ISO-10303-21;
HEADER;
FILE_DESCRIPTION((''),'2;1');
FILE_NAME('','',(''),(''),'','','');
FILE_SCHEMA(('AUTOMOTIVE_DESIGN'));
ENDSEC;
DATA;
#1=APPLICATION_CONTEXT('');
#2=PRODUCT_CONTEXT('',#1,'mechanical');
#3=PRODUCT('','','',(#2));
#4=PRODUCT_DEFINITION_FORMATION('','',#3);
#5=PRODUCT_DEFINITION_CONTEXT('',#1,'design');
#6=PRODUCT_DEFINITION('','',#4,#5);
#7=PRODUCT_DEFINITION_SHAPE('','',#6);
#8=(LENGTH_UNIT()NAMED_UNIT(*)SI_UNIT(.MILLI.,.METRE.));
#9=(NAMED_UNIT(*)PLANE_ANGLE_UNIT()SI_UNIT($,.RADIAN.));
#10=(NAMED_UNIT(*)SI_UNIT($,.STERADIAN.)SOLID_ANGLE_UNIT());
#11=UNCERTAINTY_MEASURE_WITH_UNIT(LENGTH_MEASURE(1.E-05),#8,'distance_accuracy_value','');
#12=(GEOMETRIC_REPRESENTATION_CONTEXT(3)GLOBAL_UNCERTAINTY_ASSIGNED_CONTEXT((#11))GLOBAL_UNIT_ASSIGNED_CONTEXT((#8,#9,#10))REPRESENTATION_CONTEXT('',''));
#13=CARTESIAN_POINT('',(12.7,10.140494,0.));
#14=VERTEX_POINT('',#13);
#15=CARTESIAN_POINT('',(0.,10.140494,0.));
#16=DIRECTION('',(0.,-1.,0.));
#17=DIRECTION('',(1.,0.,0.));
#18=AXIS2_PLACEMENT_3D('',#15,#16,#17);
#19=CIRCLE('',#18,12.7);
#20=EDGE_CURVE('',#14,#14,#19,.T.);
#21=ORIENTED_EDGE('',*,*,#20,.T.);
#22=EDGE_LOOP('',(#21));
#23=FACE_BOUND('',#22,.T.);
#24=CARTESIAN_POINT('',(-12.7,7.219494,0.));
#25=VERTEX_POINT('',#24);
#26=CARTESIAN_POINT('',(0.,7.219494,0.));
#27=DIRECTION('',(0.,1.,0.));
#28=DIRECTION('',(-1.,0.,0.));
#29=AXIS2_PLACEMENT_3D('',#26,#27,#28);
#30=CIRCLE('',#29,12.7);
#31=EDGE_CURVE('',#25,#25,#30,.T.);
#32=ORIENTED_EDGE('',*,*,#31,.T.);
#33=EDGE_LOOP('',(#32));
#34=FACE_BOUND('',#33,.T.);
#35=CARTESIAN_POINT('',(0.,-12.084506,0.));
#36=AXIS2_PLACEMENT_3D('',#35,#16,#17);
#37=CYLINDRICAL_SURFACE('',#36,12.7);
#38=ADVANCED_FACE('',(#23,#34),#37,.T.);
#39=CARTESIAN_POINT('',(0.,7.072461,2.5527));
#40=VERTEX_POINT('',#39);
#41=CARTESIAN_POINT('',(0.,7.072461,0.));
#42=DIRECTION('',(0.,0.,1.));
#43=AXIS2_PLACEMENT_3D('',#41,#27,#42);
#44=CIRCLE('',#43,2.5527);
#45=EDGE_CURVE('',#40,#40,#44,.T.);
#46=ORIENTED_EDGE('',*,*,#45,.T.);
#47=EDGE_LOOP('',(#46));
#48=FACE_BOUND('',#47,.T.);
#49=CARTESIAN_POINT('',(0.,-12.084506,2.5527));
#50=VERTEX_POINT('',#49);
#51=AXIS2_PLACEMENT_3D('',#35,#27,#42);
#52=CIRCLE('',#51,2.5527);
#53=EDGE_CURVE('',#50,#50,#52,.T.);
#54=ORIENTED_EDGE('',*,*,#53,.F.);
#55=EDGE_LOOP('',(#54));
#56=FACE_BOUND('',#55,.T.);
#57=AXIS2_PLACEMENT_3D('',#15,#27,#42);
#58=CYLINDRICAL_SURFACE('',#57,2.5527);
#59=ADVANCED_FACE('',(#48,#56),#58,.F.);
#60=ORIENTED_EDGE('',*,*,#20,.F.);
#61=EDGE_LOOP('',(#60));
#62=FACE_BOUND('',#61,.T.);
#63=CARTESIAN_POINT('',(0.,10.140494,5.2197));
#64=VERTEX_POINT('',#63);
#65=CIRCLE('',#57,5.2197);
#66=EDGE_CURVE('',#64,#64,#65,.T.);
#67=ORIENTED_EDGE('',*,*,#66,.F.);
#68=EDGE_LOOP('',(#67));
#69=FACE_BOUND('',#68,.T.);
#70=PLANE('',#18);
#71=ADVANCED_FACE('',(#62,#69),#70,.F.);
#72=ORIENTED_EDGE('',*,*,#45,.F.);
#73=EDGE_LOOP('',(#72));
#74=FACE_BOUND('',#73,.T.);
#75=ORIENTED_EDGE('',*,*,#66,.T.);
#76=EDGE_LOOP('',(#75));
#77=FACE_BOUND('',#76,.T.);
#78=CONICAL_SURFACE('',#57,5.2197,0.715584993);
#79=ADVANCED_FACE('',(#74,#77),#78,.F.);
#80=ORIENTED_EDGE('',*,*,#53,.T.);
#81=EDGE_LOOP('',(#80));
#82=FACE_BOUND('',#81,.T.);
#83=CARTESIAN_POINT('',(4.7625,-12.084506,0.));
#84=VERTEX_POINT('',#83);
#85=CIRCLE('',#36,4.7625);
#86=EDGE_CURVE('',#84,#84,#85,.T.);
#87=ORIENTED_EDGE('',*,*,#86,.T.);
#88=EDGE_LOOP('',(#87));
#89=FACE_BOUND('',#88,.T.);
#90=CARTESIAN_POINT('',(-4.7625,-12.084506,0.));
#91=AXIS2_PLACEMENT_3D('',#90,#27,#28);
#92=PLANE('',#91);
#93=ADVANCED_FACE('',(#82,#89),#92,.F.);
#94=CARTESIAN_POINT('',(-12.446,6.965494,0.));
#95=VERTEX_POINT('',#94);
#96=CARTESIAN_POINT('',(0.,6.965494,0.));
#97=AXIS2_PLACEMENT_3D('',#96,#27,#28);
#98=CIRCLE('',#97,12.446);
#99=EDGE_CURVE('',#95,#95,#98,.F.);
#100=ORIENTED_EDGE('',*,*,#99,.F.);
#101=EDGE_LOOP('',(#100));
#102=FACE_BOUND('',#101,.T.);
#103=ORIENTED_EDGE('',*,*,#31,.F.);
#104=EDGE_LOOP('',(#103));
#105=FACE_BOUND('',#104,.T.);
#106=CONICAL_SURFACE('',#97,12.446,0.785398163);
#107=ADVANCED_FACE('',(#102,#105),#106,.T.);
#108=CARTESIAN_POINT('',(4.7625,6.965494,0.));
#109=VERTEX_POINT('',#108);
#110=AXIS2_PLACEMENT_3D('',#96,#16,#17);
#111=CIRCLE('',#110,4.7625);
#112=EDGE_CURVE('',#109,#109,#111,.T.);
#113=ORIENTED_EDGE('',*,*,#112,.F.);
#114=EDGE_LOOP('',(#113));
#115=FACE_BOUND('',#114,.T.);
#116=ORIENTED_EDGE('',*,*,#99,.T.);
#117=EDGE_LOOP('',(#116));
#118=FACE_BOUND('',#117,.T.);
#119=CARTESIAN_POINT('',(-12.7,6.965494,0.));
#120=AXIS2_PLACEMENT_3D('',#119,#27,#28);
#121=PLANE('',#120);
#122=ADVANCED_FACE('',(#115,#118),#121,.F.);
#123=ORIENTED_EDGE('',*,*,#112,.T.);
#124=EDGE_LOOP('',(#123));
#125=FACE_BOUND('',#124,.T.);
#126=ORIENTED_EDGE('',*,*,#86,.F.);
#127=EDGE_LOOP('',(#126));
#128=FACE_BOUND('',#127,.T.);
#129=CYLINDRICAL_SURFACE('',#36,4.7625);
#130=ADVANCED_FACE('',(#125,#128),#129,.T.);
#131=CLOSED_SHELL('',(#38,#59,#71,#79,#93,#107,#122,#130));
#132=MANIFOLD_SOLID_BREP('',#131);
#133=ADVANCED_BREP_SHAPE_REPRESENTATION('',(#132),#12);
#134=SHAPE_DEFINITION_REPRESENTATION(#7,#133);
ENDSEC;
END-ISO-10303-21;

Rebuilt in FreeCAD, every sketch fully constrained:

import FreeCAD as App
import Part
import Sketcher
Q = App.Units.Quantity


def edges_at(feature, points):
    """Names of the edges that pass closest to the given points."""
    edges = feature.Shape.Edges
    near = lambda p: min(range(len(edges)), key=lambda i: edges[i].distToShape(Part.Vertex(*p))[0])
    return sorted({f"Edge{near(p) + 1}" for p in points})

doc = App.newDocument("Part")
body = doc.addObject("PartDesign::Body", "Body")

sketch1 = body.newObject("Sketcher::SketchObject", "Sketch")
sketch1.AttachmentSupport = (doc.getObject("XY_Plane"), [""])
sketch1.MapMode = "FlatFace"
sketch1.addGeometry([
    Part.LineSegment(App.Vector(0, 10.140494, 0), App.Vector(-12.7, 10.140494, 0)),
    Part.LineSegment(App.Vector(-12.7, 10.140494, 0), App.Vector(-12.7, 6.965494, 0)),
    Part.LineSegment(App.Vector(-12.7, 6.965494, 0), App.Vector(-4.7625, 6.965494, 0)),
    Part.LineSegment(App.Vector(-4.7625, 6.965494, 0), App.Vector(-4.7625, -12.084506, 0)),
    Part.LineSegment(App.Vector(-4.7625, -12.084506, 0), App.Vector(0, -12.084506, 0)),
    Part.LineSegment(App.Vector(0, -12.084506, 0), App.Vector(0, 10.140494, 0)),
], False)
sketch1.addConstraint([
    Sketcher.Constraint("Coincident", 0, 2, 1, 1),
    Sketcher.Constraint("Coincident", 1, 2, 2, 1),
    Sketcher.Constraint("Coincident", 2, 2, 3, 1),
    Sketcher.Constraint("Coincident", 3, 2, 4, 1),
    Sketcher.Constraint("Coincident", 4, 2, 5, 1),
    Sketcher.Constraint("Coincident", 5, 2, 0, 1),
    Sketcher.Constraint("Horizontal", 0),
    Sketcher.Constraint("Vertical", 1),
    Sketcher.Constraint("Horizontal", 2),
    Sketcher.Constraint("Vertical", 3),
    Sketcher.Constraint("Horizontal", 4),
    Sketcher.Constraint("Vertical", 5),
    Sketcher.Constraint("PointOnObject", 4, 2, -2),
    Sketcher.Constraint("DistanceX", 0, 2, 0, 1, Q("0.5 in")),
    Sketcher.Constraint("DistanceY", 3, 2, 3, 1, Q("0.75 in")),
    Sketcher.Constraint("DistanceX", 2, 1, 2, 2, Q("0.3125 in")),
    Sketcher.Constraint("DistanceY", 1, 2, 1, 1, Q("0.125 in")),
    Sketcher.Constraint("DistanceY", -1, 1, 0, 2, 10.140494),
])
revolution = body.newObject("PartDesign::Revolution", "Revolution")
revolution.Profile = sketch1
revolution.ReferenceAxis = (sketch1, ["V_Axis"])
revolution.Angle = 360

sketch2 = body.newObject("Sketcher::SketchObject", "Sketch001")
sketch2.AttachmentSupport = (doc.getObject("XZ_Plane"), [""])
sketch2.MapMode = "FlatFace"
sketch2.AttachmentOffset = App.Placement(App.Vector(0, 0, -10.140494), App.Rotation())
sketch2.addGeometry(Part.Circle(App.Vector(0, 0, 0), App.Vector(0, 0, 1), 2.5527), False)
sketch2.addConstraint([
    Sketcher.Constraint("Coincident", 0, 3, -1, 1),
    Sketcher.Constraint("Diameter", 0, Q("0.201 in")),
])
doc.recompute()
hole = body.newObject("PartDesign::Hole", "Hole")
hole.Profile = sketch2
hole.ThreadType = "None"
hole.Diameter = Q("0.201 in")
hole.DepthType = "ThroughAll"
hole.HoleCutType = "Countersink"
hole.HoleCutDiameter = Q("0.411 in")
hole.HoleCutCountersinkAngle = 82
hole.Reversed = True
doc.recompute()

chamfer = body.newObject("PartDesign::Chamfer", "Chamfer")
chamfer.Base = (hole, edges_at(hole, [(-12.7, 6.965, 0)]))
chamfer.Size = Q("0.01 in")

doc.recompute()
